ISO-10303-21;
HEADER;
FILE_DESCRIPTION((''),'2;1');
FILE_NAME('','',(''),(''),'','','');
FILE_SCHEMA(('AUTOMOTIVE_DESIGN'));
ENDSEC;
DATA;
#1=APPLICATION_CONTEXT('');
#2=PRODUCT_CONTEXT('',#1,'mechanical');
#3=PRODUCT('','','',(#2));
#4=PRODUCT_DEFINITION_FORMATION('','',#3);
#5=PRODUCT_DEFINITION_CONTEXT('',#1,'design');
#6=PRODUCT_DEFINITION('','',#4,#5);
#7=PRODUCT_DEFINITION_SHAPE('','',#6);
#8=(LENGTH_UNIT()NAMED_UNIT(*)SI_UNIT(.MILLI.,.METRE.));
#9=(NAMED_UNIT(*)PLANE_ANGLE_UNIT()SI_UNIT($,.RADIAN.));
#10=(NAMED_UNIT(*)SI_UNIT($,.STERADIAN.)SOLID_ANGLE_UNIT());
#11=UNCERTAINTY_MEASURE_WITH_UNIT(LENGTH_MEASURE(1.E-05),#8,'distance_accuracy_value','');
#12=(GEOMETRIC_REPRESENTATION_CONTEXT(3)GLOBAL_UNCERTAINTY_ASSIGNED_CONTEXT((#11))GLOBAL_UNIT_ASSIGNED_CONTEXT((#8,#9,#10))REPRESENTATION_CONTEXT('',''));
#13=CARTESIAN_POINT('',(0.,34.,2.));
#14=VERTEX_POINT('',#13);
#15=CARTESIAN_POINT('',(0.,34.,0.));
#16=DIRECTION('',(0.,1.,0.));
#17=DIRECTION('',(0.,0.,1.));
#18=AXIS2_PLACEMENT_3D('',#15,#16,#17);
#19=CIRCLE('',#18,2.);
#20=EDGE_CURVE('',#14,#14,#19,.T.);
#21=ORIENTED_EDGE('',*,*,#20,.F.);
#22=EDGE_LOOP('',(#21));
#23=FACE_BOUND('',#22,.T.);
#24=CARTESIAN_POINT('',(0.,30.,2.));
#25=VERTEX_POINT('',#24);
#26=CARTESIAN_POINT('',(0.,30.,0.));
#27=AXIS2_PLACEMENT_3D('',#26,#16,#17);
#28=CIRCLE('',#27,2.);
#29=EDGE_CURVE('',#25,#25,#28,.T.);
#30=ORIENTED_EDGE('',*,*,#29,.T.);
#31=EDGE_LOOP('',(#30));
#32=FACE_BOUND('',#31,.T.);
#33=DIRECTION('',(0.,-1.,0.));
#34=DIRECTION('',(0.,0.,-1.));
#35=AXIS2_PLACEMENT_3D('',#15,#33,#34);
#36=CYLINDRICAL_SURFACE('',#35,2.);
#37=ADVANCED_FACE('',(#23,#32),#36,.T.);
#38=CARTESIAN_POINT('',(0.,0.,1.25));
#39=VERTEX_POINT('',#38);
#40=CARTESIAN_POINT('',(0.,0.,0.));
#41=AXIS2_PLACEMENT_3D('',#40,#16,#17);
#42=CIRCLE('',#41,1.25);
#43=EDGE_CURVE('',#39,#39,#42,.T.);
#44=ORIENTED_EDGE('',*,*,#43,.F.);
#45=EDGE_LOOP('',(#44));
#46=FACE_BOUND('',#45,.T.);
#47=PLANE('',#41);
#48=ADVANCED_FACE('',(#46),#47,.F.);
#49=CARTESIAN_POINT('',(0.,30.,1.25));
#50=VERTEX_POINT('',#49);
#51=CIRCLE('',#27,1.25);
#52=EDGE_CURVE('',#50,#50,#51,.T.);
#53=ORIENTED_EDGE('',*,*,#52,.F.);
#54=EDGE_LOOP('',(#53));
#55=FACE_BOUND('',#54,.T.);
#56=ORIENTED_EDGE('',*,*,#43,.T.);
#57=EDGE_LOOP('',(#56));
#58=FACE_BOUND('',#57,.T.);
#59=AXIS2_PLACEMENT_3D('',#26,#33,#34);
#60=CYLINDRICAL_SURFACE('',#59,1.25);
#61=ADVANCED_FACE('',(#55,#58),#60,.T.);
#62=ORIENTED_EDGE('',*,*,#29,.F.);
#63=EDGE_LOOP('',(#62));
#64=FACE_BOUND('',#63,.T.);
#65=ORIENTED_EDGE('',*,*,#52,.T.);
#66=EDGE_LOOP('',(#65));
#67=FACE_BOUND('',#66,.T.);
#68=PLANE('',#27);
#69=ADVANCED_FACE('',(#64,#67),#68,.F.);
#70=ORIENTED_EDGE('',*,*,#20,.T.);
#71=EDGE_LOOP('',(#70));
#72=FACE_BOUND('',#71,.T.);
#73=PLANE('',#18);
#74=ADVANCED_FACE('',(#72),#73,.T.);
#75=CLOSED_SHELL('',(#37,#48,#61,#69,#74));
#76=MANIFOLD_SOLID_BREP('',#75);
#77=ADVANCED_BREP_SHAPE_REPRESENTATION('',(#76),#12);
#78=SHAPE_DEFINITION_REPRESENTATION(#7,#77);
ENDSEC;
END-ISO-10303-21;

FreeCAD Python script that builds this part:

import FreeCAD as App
import Part
import Sketcher

doc = App.newDocument("Part")
body = doc.addObject("PartDesign::Body", "Body")

sketch1 = body.newObject("Sketcher::SketchObject", "Sketch")
sketch1.AttachmentSupport = (doc.getObject("XZ_Plane"), [""])
sketch1.MapMode = "FlatFace"
sketch1.addGeometry(Part.Circle(App.Vector(0, 0, 0), App.Vector(0, 0, 1), 1.2), False)
sketch1.addConstraint([
    Sketcher.Constraint("Coincident", 0, 3, -1, 1),
    Sketcher.Constraint("Diameter", 0, 2.5),
])
pad1 = body.newObject("PartDesign::Pad", "Pad")
pad1.Profile = sketch1
pad1.Length = 30
pad1.Reversed = True

sketch2 = body.newObject("Sketcher::SketchObject", "Sketch001")
sketch2.AttachmentSupport = (doc.getObject("XZ_Plane"), [""])
sketch2.MapMode = "FlatFace"
sketch2.AttachmentOffset = App.Placement(App.Vector(0, 0, -30), App.Rotation())
sketch2.addGeometry(Part.Circle(App.Vector(0, 0, 0), App.Vector(0, 0, 1), 2), False)
sketch2.addConstraint([
    Sketcher.Constraint("Coincident", 0, 3, -1, 1),
    Sketcher.Constraint("Diameter", 0, 4.0),
])
pad2 = body.newObject("PartDesign::Pad", "Pad001")
pad2.Profile = sketch2
pad2.Length = 4
pad2.Reversed = True

doc.recompute()
